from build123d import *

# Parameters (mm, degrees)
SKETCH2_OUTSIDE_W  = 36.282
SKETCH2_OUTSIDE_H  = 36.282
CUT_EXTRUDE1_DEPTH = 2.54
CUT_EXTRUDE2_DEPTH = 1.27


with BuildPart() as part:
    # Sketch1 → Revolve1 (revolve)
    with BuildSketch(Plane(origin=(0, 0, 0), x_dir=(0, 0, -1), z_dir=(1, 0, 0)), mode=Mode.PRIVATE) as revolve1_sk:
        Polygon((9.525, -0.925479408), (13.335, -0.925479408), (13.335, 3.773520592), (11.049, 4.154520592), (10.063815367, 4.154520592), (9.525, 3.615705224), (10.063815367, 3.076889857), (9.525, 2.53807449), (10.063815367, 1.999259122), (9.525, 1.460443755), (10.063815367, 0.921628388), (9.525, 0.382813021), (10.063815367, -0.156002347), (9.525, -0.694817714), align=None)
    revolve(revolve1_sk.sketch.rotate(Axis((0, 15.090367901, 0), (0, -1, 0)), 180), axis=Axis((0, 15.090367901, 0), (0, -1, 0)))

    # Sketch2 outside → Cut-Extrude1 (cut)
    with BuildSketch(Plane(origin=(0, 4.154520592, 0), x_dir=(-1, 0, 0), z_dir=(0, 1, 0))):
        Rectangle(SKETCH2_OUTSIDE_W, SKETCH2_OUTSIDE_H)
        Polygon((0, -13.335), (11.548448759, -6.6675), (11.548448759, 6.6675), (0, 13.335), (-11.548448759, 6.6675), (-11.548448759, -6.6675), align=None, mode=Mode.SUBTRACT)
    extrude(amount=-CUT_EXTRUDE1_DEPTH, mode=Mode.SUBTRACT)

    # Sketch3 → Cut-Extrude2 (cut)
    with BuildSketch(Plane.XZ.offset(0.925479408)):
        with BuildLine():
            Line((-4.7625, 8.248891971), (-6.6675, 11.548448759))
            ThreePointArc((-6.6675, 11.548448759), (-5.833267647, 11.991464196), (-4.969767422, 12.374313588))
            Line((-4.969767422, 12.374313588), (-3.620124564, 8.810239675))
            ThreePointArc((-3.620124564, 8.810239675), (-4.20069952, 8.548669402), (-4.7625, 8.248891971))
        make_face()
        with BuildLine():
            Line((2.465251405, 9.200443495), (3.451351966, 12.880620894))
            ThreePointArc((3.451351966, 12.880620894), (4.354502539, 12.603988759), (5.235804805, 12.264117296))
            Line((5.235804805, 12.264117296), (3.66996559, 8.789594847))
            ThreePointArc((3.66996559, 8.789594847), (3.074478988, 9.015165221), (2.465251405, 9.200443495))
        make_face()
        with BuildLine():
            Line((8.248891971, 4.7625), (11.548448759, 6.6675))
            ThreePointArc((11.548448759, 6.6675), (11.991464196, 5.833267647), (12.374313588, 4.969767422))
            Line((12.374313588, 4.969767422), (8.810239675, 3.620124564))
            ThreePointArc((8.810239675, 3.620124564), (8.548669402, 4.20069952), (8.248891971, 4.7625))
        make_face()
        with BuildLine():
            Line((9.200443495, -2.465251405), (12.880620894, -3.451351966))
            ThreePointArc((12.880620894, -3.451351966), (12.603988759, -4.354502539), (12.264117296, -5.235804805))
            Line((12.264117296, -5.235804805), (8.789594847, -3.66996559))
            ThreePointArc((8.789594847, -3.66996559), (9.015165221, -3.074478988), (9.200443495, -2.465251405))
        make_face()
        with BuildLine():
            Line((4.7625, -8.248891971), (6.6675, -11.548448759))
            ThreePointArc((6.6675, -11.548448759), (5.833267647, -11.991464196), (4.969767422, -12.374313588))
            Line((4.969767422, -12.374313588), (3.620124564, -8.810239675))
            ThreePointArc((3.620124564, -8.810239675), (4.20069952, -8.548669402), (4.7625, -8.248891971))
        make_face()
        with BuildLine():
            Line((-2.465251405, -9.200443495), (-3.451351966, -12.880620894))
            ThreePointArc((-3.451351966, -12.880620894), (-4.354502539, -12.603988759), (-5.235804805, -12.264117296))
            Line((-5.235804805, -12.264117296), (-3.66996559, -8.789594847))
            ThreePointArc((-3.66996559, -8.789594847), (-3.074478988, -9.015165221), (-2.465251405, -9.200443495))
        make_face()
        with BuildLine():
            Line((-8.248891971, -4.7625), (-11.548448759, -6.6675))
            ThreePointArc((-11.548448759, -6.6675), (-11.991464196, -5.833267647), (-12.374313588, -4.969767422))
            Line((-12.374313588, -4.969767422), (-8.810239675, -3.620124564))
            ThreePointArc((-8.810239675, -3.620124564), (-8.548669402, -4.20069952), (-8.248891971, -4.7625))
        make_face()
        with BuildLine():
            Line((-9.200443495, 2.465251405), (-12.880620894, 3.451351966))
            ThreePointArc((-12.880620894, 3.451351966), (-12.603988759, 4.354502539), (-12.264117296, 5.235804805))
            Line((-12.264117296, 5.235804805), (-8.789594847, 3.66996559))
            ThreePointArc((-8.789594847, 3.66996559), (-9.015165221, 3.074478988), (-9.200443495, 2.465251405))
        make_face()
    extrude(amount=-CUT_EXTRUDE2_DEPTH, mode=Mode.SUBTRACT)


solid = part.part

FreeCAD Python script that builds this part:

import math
import FreeCAD as App
import Part
import Sketcher
from FreeCAD import Vector
Q = App.Units.Quantity

doc = App.newDocument("Part")
params = doc.addObject("Spreadsheet::Sheet", "Params")
for row, (alias, value) in enumerate([
    ("sketch1_height", "0.15 in"),
    ("sketch1_length", "0.03 in"),
    ("sketch1_width", "0.185 in"),
    ("revolution_angle", "360 deg"),
    ("sketch2_height", "0.525 in"),
    ("pocket1_length", "0.1 in"),
    ("sketch3_radius", "0.375 in"),
    ("sketch3_radius2", "0.525 in"),
    ("pocket2_length", "0.05 in"),
], start=1):
    params.set(f"A{row}", alias)
    params.set(f"B{row}", "=" + value)
    params.setAlias(f"B{row}", alias)

body = doc.addObject("PartDesign::Body", "Body")

# Sketch on YZ plane
sketch1 = body.newObject("Sketcher::SketchObject", "Sketch")
sketch1.AttachmentSupport = (doc.getObject("YZ_Plane"), [""])
sketch1.MapMode = "FlatFace"
sketch1.addGeometry([
    Part.LineSegment(Vector(-0.93, -9.53, 0), Vector(-0.93, -13.34, 0)),  # 0
    Part.LineSegment(Vector(-0.93, -13.34, 0), Vector(3.77, -13.34, 0)),  # 1
    Part.LineSegment(Vector(3.77, -13.34, 0), Vector(4.15, -11.05, 0)),  # 2
    Part.LineSegment(Vector(4.15, -11.05, 0), Vector(4.15, -10.06, 0)),  # 3
    Part.LineSegment(Vector(4.15, -10.06, 0), Vector(3.62, -9.53, 0)),  # 4
    Part.LineSegment(Vector(3.62, -9.53, 0), Vector(3.08, -10.06, 0)),  # 5
    Part.LineSegment(Vector(3.08, -10.06, 0), Vector(2.54, -9.53, 0)),  # 6
    Part.LineSegment(Vector(2.54, -9.53, 0), Vector(2, -10.06, 0)),  # 7
    Part.LineSegment(Vector(2, -10.06, 0), Vector(1.46, -9.53, 0)),  # 8
    Part.LineSegment(Vector(1.46, -9.53, 0), Vector(0.92, -10.06, 0)),  # 9
    Part.LineSegment(Vector(0.92, -10.06, 0), Vector(0.38, -9.53, 0)),  # 10
    Part.LineSegment(Vector(0.38, -9.53, 0), Vector(-0.16, -10.06, 0)),  # 11
    Part.LineSegment(Vector(-0.16, -10.06, 0), Vector(-0.69, -9.53, 0)),  # 12
    Part.LineSegment(Vector(-0.69, -9.53, 0), Vector(-0.93, -9.53, 0)),  # 13
], False)
sketch1.addConstraint([
    Sketcher.Constraint("Coincident", 0, 2, 1, 1),
    Sketcher.Constraint("Coincident", 1, 2, 2, 1),
    Sketcher.Constraint("Coincident", 2, 2, 3, 1),
    Sketcher.Constraint("Coincident", 3, 2, 4, 1),
    Sketcher.Constraint("Coincident", 4, 2, 5, 1),
    Sketcher.Constraint("Coincident", 5, 2, 6, 1),
    Sketcher.Constraint("Coincident", 6, 2, 7, 1),
    Sketcher.Constraint("Coincident", 7, 2, 8, 1),
    Sketcher.Constraint("Coincident", 8, 2, 9, 1),
    Sketcher.Constraint("Coincident", 9, 2, 10, 1),
    Sketcher.Constraint("Coincident", 10, 2, 11, 1),
    Sketcher.Constraint("Coincident", 11, 2, 12, 1),
    Sketcher.Constraint("Coincident", 12, 2, 13, 1),
    Sketcher.Constraint("Coincident", 13, 2, 0, 1),
    Sketcher.Constraint("Vertical", 0),
    Sketcher.Constraint("Horizontal", 1),
    Sketcher.Constraint("Vertical", 3),
    Sketcher.Constraint("Horizontal", 13),
    Sketcher.Constraint("Perpendicular", 4, 5),
    Sketcher.Constraint("Perpendicular", 5, 6),
    Sketcher.Constraint("Perpendicular", 6, 7),
    Sketcher.Constraint("Perpendicular", 7, 8),
    Sketcher.Constraint("Perpendicular", 8, 9),
    Sketcher.Constraint("Perpendicular", 9, 10),
    Sketcher.Constraint("Perpendicular", 10, 11),
    Sketcher.Constraint("Perpendicular", 11, 12),
    Sketcher.Constraint("Horizontal", 3, 2, 5, 2),
    Sketcher.Constraint("Horizontal", 4, 2, 6, 2),
    Sketcher.Constraint("Horizontal", 5, 2, 7, 2),
    Sketcher.Constraint("Horizontal", 6, 2, 8, 2),
    Sketcher.Constraint("Horizontal", 7, 2, 9, 2),
    Sketcher.Constraint("Horizontal", 8, 2, 10, 2),
    Sketcher.Constraint("Horizontal", 9, 2, 11, 2),
    Sketcher.Constraint("Horizontal", 10, 2, 12, 2),
    Sketcher.Constraint("Equal", 4, 5),
    Sketcher.Constraint("DistanceY", 0, 2, 0, 1, Q("0.15 in")),
    Sketcher.Constraint("DistanceX", 0, 2, 2, 2, Q("0.2 in")),
    Sketcher.Constraint("Distance", 4, Q("0.03 in")),
    Sketcher.Constraint("DistanceX", 1, 1, 1, 2, Q("0.185 in")),
    Sketcher.Constraint("DistanceY", 1, 2, 2, 2, Q("0.09 in")),
    Sketcher.Constraint("DistanceY", 0, 2, -1, 1, Q("0.525 in")),
    Sketcher.Constraint("DistanceX", 0, 2, -1, 1, Q("0.925479 mm")),
])
sketch1.setExpression("Constraints[35]", "Params.sketch1_height")
sketch1.setExpression("Constraints[37]", "Params.sketch1_length")
sketch1.setExpression("Constraints[38]", "Params.sketch1_width")
revolution = body.newObject("PartDesign::Revolution", "Revolution")
revolution.Profile = sketch1
revolution.ReferenceAxis = (sketch1, ["H_Axis"])
revolution.setExpression("Angle", "Params.revolution_angle")

# Sketch on XZ plane
sketch2 = body.newObject("Sketcher::SketchObject", "Sketch001")
sketch2.AttachmentSupport = (doc.getObject("XZ_Plane"), [""])
sketch2.MapMode = "FlatFace"
sketch2.AttachmentOffset = App.Placement(Vector(0, 0, -4.154521), App.Rotation())
sketch2.addGeometry([
    Part.LineSegment(Vector(18, 18, 0), Vector(18, -18, 0)),  # 0
    Part.LineSegment(Vector(18, -18, 0), Vector(-18, -18, 0)),  # 1
    Part.LineSegment(Vector(-18, -18, 0), Vector(-18, 18, 0)),  # 2
    Part.LineSegment(Vector(-18, 18, 0), Vector(18, 18, 0)),  # 3
    Part.LineSegment(Vector(-12, -7, 0), Vector(0, -13, 0)),  # 4
    Part.LineSegment(Vector(0, -13, 0), Vector(12, -7, 0)),  # 5
    Part.LineSegment(Vector(12, -7, 0), Vector(12, 7, 0)),  # 6
    Part.LineSegment(Vector(12, 7, 0), Vector(0, 13, 0)),  # 7
    Part.LineSegment(Vector(0, 13, 0), Vector(-12, 7, 0)),  # 8
    Part.LineSegment(Vector(-12, 7, 0), Vector(-12, -7, 0)),  # 9
], False)
sketch2.addConstraint([
    Sketcher.Constraint("Coincident", 0, 2, 1, 1),
    Sketcher.Constraint("Coincident", 1, 2, 2, 1),
    Sketcher.Constraint("Coincident", 2, 2, 3, 1),
    Sketcher.Constraint("Coincident", 3, 2, 0, 1),
    Sketcher.Constraint("Coincident", 4, 2, 5, 1),
    Sketcher.Constraint("Coincident", 5, 2, 6, 1),
    Sketcher.Constraint("Coincident", 6, 2, 7, 1),
    Sketcher.Constraint("Coincident", 7, 2, 8, 1),
    Sketcher.Constraint("Coincident", 8, 2, 9, 1),
    Sketcher.Constraint("Coincident", 9, 2, 4, 1),
    Sketcher.Constraint("Vertical", 0),
    Sketcher.Constraint("Horizontal", 1),
    Sketcher.Constraint("Vertical", 2),
    Sketcher.Constraint("Horizontal", 3),
    Sketcher.Constraint("Vertical", 6),
    Sketcher.Constraint("Vertical", 9),
    Sketcher.Constraint("Symmetric", 0, 2, 2, 2, -1, 1),
    Sketcher.Constraint("Symmetric", 4, 2, 7, 2, -1, 1),
    Sketcher.Constraint("Symmetric", 5, 2, 8, 2, -1, 1),
    Sketcher.Constraint("PointOnObject", 4, 2, -2),
    Sketcher.Constraint("Parallel", 4, 7),
    Sketcher.Constraint("Horizontal", 6, 2, 8, 2),
    Sketcher.Constraint("Equal", 3, 0),
    Sketcher.Constraint("Angle", 4, Q("-30 deg")),
    Sketcher.Constraint("DistanceY", 6, 1, 6, 2, Q("0.525 in")),
    Sketcher.Constraint("DistanceY", 4, 2, 7, 2, Q("1.05 in")),
    Sketcher.Constraint("DistanceX", 1, 2, 1, 1, Q("36.282 mm")),
])
sketch2.setExpression("Constraints[24]", "Params.sketch2_height")
pocket1 = body.newObject("PartDesign::Pocket", "Pocket")
pocket1.Profile = sketch2
pocket1.setExpression("Length", "Params.pocket1_length")
pocket1.Reversed = True

# Sketch on XZ plane
sketch3 = body.newObject("Sketcher::SketchObject", "Sketch002")
sketch3.AttachmentSupport = (doc.getObject("XZ_Plane"), [""])
sketch3.MapMode = "FlatFace"
sketch3.AttachmentOffset = App.Placement(Vector(0, 0, 0.925479), App.Rotation())
sketch3.addGeometry([
    Part.LineSegment(Vector(-6.7, 11.5, 0), Vector(-4.8, 8.2, 0)),  # 0
    Part.ArcOfCircle(Part.Circle(Vector(0, 0, 0), Vector(0, 0, 1), 9.5), math.radians(112.34), math.radians(120)),  # 1
    Part.LineSegment(Vector(-3.6, 8.8, 0), Vector(-5, 12.4, 0)),  # 2
    Part.ArcOfCircle(Part.Circle(Vector(0, 0, 0), Vector(0, 0, 1), 13.3), math.radians(111.88), math.radians(120)),  # 3
    Part.LineSegment(Vector(3.5, 12.9, 0), Vector(2.5, 9.2, 0)),  # 4
    Part.ArcOfCircle(Part.Circle(Vector(0, 0, 0), Vector(0, 0, 1), 9.5), math.radians(67.34), math.radians(75)),  # 5
    Part.LineSegment(Vector(3.7, 8.8, 0), Vector(5.2, 12.3, 0)),  # 6
    Part.ArcOfCircle(Part.Circle(Vector(0, 0, 0), Vector(0, 0, 1), 13.3), math.radians(66.88), math.radians(75)),  # 7
    Part.LineSegment(Vector(11.5, 6.7, 0), Vector(8.2, 4.8, 0)),  # 8
    Part.ArcOfCircle(Part.Circle(Vector(0, 0, 0), Vector(0, 0, 1), 9.5), math.radians(22.34), math.radians(30)),  # 9
    Part.LineSegment(Vector(8.8, 3.6, 0), Vector(12.4, 5, 0)),  # 10
    Part.ArcOfCircle(Part.Circle(Vector(0, 0, 0), Vector(0, 0, 1), 13.3), math.radians(21.88), math.radians(30)),  # 11
    Part.LineSegment(Vector(12.9, -3.5, 0), Vector(9.2, -2.5, 0)),  # 12
    Part.ArcOfCircle(Part.Circle(Vector(0, 0, 0), Vector(0, 0, 1), 9.5), math.radians(-22.66), math.radians(-15)),  # 13
    Part.LineSegment(Vector(8.8, -3.7, 0), Vector(12.3, -5.2, 0)),  # 14
    Part.ArcOfCircle(Part.Circle(Vector(0, 0, 0), Vector(0, 0, 1), 13.3), math.radians(-23.12), math.radians(-15)),  # 15
    Part.LineSegment(Vector(6.7, -11.5, 0), Vector(4.8, -8.2, 0)),  # 16
    Part.ArcOfCircle(Part.Circle(Vector(0, 0, 0), Vector(0, 0, 1), 9.5), math.radians(-67.66), math.radians(-60)),  # 17
    Part.LineSegment(Vector(3.6, -8.8, 0), Vector(5, -12.4, 0)),  # 18
    Part.ArcOfCircle(Part.Circle(Vector(0, 0, 0), Vector(0, 0, 1), 13.3), math.radians(-68.12), math.radians(-60)),  # 19
    Part.LineSegment(Vector(-3.5, -12.9, 0), Vector(-2.5, -9.2, 0)),  # 20
    Part.ArcOfCircle(Part.Circle(Vector(0, 0, 0), Vector(0, 0, 1), 9.5), math.radians(-112.66), math.radians(-105)),  # 21
    Part.LineSegment(Vector(-3.7, -8.8, 0), Vector(-5.2, -12.3, 0)),  # 22
    Part.ArcOfCircle(Part.Circle(Vector(0, 0, 0), Vector(0, 0, 1), 13.3), math.radians(-113.12), math.radians(-105)),  # 23
    Part.LineSegment(Vector(-11.5, -6.7, 0), Vector(-8.2, -4.8, 0)),  # 24
    Part.ArcOfCircle(Part.Circle(Vector(0, 0, 0), Vector(0, 0, 1), 9.5), math.radians(-157.66), math.radians(-150)),  # 25
    Part.LineSegment(Vector(-8.8, -3.6, 0), Vector(-12.4, -5, 0)),  # 26
    Part.ArcOfCircle(Part.Circle(Vector(0, 0, 0), Vector(0, 0, 1), 13.3), math.radians(-158.12), math.radians(-150)),  # 27
    Part.LineSegment(Vector(-12.9, 3.5, 0), Vector(-9.2, 2.5, 0)),  # 28
    Part.ArcOfCircle(Part.Circle(Vector(0, 0, 0), Vector(0, 0, 1), 9.5), math.radians(157.34), math.radians(165)),  # 29
    Part.LineSegment(Vector(-8.8, 3.7, 0), Vector(-12.3, 5.2, 0)),  # 30
    Part.ArcOfCircle(Part.Circle(Vector(0, 0, 0), Vector(0, 0, 1), 13.3), math.radians(156.88), math.radians(165)),  # 31
], False)
sketch3.addConstraint([
    Sketcher.Constraint("Coincident", 0, 2, 1, 2),
    Sketcher.Constraint("Coincident", 1, 1, 2, 1),
    Sketcher.Constraint("Coincident", 2, 2, 3, 1),
    Sketcher.Constraint("Coincident", 3, 2, 0, 1),
    Sketcher.Constraint("Coincident", 4, 2, 5, 2),
    Sketcher.Constraint("Coincident", 5, 1, 6, 1),
    Sketcher.Constraint("Coincident", 6, 2, 7, 1),
    Sketcher.Constraint("Coincident", 7, 2, 4, 1),
    Sketcher.Constraint("Coincident", 8, 2, 9, 2),
    Sketcher.Constraint("Coincident", 9, 1, 10, 1),
    Sketcher.Constraint("Coincident", 10, 2, 11, 1),
    Sketcher.Constraint("Coincident", 11, 2, 8, 1),
    Sketcher.Constraint("Coincident", 12, 2, 13, 2),
    Sketcher.Constraint("Coincident", 13, 1, 14, 1),
    Sketcher.Constraint("Coincident", 14, 2, 15, 1),
    Sketcher.Constraint("Coincident", 15, 2, 12, 1),
    Sketcher.Constraint("Coincident", 16, 2, 17, 2),
    Sketcher.Constraint("Coincident", 17, 1, 18, 1),
    Sketcher.Constraint("Coincident", 18, 2, 19, 1),
    Sketcher.Constraint("Coincident", 19, 2, 16, 1),
    Sketcher.Constraint("Coincident", 20, 2, 21, 2),
    Sketcher.Constraint("Coincident", 21, 1, 22, 1),
    Sketcher.Constraint("Coincident", 22, 2, 23, 1),
    Sketcher.Constraint("Coincident", 23, 2, 20, 1),
    Sketcher.Constraint("Coincident", 24, 2, 25, 2),
    Sketcher.Constraint("Coincident", 25, 1, 26, 1),
    Sketcher.Constraint("Coincident", 26, 2, 27, 1),
    Sketcher.Constraint("Coincident", 27, 2, 24, 1),
    Sketcher.Constraint("Coincident", 28, 2, 29, 2),
    Sketcher.Constraint("Coincident", 29, 1, 30, 1),
    Sketcher.Constraint("Coincident", 30, 2, 31, 1),
    Sketcher.Constraint("Coincident", 31, 2, 28, 1),
    Sketcher.Constraint("Coincident", 1, 3, -1, 1),
    Sketcher.Constraint("Coincident", 3, 3, -1, 1),
    Sketcher.Constraint("Coincident", 5, 3, -1, 1),
    Sketcher.Constraint("Coincident", 7, 3, -1, 1),
    Sketcher.Constraint("Coincident", 9, 3, -1, 1),
    Sketcher.Constraint("Coincident", 11, 3, -1, 1),
    Sketcher.Constraint("Coincident", 13, 3, -1, 1),
    Sketcher.Constraint("Coincident", 15, 3, -1, 1),
    Sketcher.Constraint("Coincident", 17, 3, -1, 1),
    Sketcher.Constraint("Coincident", 19, 3, -1, 1),
    Sketcher.Constraint("Coincident", 21, 3, -1, 1),
    Sketcher.Constraint("Coincident", 23, 3, -1, 1),
    Sketcher.Constraint("Coincident", 25, 3, -1, 1),
    Sketcher.Constraint("Coincident", 27, 3, -1, 1),
    Sketcher.Constraint("Coincident", 29, 3, -1, 1),
    Sketcher.Constraint("Coincident", 31, 3, -1, 1),
    Sketcher.Constraint("Equal", 1, 5),
    Sketcher.Constraint("Equal", 3, 7),
    Sketcher.Constraint("Equal", 5, 9),
    Sketcher.Constraint("Equal", 7, 11),
    Sketcher.Constraint("Equal", 9, 13),
    Sketcher.Constraint("Equal", 11, 15),
    Sketcher.Constraint("Equal", 13, 17),
    Sketcher.Constraint("Equal", 15, 19),
    Sketcher.Constraint("Equal", 17, 21),
    Sketcher.Constraint("Equal", 19, 23),
    Sketcher.Constraint("Equal", 21, 25),
    Sketcher.Constraint("Equal", 23, 27),
    Sketcher.Constraint("Equal", 25, 29),
    Sketcher.Constraint("Equal", 27, 31),
    Sketcher.Constraint("Perpendicular", 0, 8),
    Sketcher.Constraint("Perpendicular", 2, 10),
    Sketcher.Constraint("Perpendicular", 4, 12),
    Sketcher.Constraint("Perpendicular", 6, 14),
    Sketcher.Constraint("Perpendicular", 8, 16),
    Sketcher.Constraint("Perpendicular", 10, 18),
    Sketcher.Constraint("Perpendicular", 12, 20),
    Sketcher.Constraint("Perpendicular", 14, 22),
    Sketcher.Constraint("Perpendicular", 16, 24),
    Sketcher.Constraint("Perpendicular", 18, 26),
    Sketcher.Constraint("Perpendicular", 20, 28),
    Sketcher.Constraint("Perpendicular", 22, 30),
    Sketcher.Constraint("Equal", 2, 6),
    Sketcher.Constraint("Equal", 6, 10),
    Sketcher.Constraint("Equal", 10, 14),
    Sketcher.Constraint("Equal", 14, 18),
    Sketcher.Constraint("Equal", 18, 22),
    Sketcher.Constraint("Equal", 22, 26),
    Sketcher.Constraint("Equal", 26, 30),
    Sketcher.Constraint("Angle", 0, Q("-60 deg")),
    Sketcher.Constraint("Angle", 4, Q("-105 deg")),
    Sketcher.Constraint("Radius", 1, Q("0.375 in")),
    Sketcher.Constraint("Radius", 3, Q("0.525 in")),
    Sketcher.Constraint("DistanceX", 0, 2, -1, 1, Q("0.1875 in")),
    Sketcher.Constraint("DistanceY", -1, 1, 8, 2, Q("0.1875 in")),
    Sketcher.Constraint("DistanceX", -1, 1, 16, 2, Q("0.1875 in")),
    Sketcher.Constraint("DistanceY", 24, 2, -1, 1, Q("0.1875 in")),
    Sketcher.Constraint("DistanceY", -1, 1, 1, 1, Q("8.81024 mm")),
    Sketcher.Constraint("DistanceX", -1, 1, 4, 2, Q("2.465251 mm")),
    Sketcher.Constraint("DistanceY", 12, 2, -1, 1, Q("2.465251 mm")),
    Sketcher.Constraint("DistanceX", 20, 2, -1, 1, Q("2.465251 mm")),
    Sketcher.Constraint("DistanceY", -1, 1, 28, 2, Q("2.465251 mm")),
    Sketcher.Constraint("DistanceY", 0, 2, 2, 2, Q("4.125422 mm")),
    Sketcher.Constraint("DistanceY", 5, 1, 4, 2, Q("0.410849 mm")),
])
sketch3.setExpression("Constraints[83]", "Params.sketch3_radius")
sketch3.setExpression("Constraints[84]", "Params.sketch3_radius2")
pocket2 = body.newObject("PartDesign::Pocket", "Pocket001")
pocket2.Profile = sketch3
pocket2.setExpression("Length", "Params.pocket2_length")

doc.recompute()
